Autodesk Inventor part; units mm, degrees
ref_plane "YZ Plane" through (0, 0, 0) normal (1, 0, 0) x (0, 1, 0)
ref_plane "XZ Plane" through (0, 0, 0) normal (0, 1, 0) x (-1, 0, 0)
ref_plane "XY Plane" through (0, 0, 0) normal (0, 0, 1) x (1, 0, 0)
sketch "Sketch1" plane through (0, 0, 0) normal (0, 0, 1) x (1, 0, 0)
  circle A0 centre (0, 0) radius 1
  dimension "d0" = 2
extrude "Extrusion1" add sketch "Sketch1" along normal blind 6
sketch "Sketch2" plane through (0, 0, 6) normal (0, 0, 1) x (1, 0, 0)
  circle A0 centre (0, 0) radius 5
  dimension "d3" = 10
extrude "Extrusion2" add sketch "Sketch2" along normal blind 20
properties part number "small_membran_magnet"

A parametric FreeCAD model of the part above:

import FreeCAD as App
import Part
import Sketcher

doc = App.newDocument("Part")
body = doc.addObject("PartDesign::Body", "Body")

# Sketch on XY plane
sketch1 = body.newObject("Sketcher::SketchObject", "Sketch")
sketch1.AttachmentSupport = (doc.getObject("XY_Plane"), [""])
sketch1.MapMode = "FlatFace"
sketch1.addGeometry(Part.Circle(App.Vector(0, 0, 0), App.Vector(0, 0, 1), 1), False)
sketch1.addConstraint([
    Sketcher.Constraint("Coincident", 0, 3, -1, 1),
    Sketcher.Constraint("Diameter", 0, 2.0),
])
pad1 = body.newObject("PartDesign::Pad", "Pad")
pad1.Profile = sketch1
pad1.Length = 6

# Sketch on XY plane
sketch2 = body.newObject("Sketcher::SketchObject", "Sketch001")
sketch2.AttachmentSupport = (doc.getObject("XY_Plane"), [""])
sketch2.MapMode = "FlatFace"
sketch2.AttachmentOffset = App.Placement(App.Vector(0, 0, 6), App.Rotation())
sketch2.addGeometry(Part.Circle(App.Vector(0, 0, 0), App.Vector(0, 0, 1), 5), False)
sketch2.addConstraint([
    Sketcher.Constraint("Coincident", 0, 3, -1, 1),
    Sketcher.Constraint("Diameter", 0, 10.0),
])
pad2 = body.newObject("PartDesign::Pad", "Pad001")
pad2.Profile = sketch2
pad2.Length = 20

doc.recompute()
